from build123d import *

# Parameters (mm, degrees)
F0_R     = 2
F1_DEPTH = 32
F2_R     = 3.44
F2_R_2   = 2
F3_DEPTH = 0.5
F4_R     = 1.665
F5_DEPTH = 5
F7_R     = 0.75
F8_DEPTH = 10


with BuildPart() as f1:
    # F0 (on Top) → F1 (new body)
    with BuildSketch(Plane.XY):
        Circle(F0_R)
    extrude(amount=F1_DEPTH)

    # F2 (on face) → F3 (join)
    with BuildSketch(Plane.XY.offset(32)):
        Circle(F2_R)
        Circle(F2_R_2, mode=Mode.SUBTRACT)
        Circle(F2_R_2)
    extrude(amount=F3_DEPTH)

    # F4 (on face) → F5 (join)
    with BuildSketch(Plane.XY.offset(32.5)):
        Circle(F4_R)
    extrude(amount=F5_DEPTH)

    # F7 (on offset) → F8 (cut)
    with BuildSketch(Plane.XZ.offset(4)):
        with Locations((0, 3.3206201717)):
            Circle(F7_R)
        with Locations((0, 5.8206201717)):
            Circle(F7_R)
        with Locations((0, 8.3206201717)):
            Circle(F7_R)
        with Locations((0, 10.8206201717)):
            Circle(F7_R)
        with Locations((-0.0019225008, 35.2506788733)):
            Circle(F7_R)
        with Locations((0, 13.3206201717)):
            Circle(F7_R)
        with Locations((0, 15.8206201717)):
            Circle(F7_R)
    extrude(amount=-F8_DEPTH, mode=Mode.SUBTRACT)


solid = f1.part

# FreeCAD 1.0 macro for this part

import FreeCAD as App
import Part
import Sketcher

doc = App.newDocument("Part")
params = doc.addObject("Spreadsheet::Sheet", "Params")
for row, (alias, value) in enumerate([
    ("sketch1_diameter", "4 mm"),
    ("pad1_length", "32 mm"),
    ("sketch2_diameter", "6.88 mm"),
    ("pad2_length", "0.5 mm"),
    ("sketch3_diameter", "3.33 mm"),
    ("pad3_length", "5 mm"),
    ("sketch4_diameter", "1.5 mm"),
    ("pocket1_length", "10 mm"),
], start=1):
    params.set(f"A{row}", alias)
    params.set(f"B{row}", "=" + value)
    params.setAlias(f"B{row}", alias)

body = doc.addObject("PartDesign::Body", "Body")

# Sketch on XY plane
sketch1 = body.newObject("Sketcher::SketchObject", "Sketch")
sketch1.AttachmentSupport = (doc.getObject("XY_Plane"), [""])
sketch1.MapMode = "FlatFace"
sketch1.addGeometry(Part.Circle(App.Vector(0, 0, 0), App.Vector(0, 0, 1), 2), False)
sketch1.addConstraint(Sketcher.Constraint("Coincident", 0, 3, -1, 1))
sketch1.addConstraint(Sketcher.Constraint("Diameter", 0, 4.0))
sketch1.setExpression("Constraints[1]", "Params.sketch1_diameter")
pad1 = body.newObject("PartDesign::Pad", "Pad")
pad1.Profile = sketch1
pad1.setExpression("Length", "Params.pad1_length")

# Sketch on XY plane
sketch2 = body.newObject("Sketcher::SketchObject", "Sketch001")
sketch2.AttachmentSupport = (doc.getObject("XY_Plane"), [""])
sketch2.MapMode = "FlatFace"
sketch2.AttachmentOffset = App.Placement(App.Vector(0, 0, 32), App.Rotation())
sketch2.addGeometry(Part.Circle(App.Vector(0, 0, 0), App.Vector(0, 0, 1), 3.4), False)
sketch2.addConstraint(Sketcher.Constraint("Coincident", 0, 3, -1, 1))
sketch2.addConstraint(Sketcher.Constraint("Diameter", 0, 6.88))
sketch2.setExpression("Constraints[1]", "Params.sketch2_diameter")
pad2 = body.newObject("PartDesign::Pad", "Pad001")
pad2.Profile = sketch2
pad2.setExpression("Length", "Params.pad2_length")

# Sketch on XY plane
sketch3 = body.newObject("Sketcher::SketchObject", "Sketch002")
sketch3.AttachmentSupport = (doc.getObject("XY_Plane"), [""])
sketch3.MapMode = "FlatFace"
sketch3.AttachmentOffset = App.Placement(App.Vector(0, 0, 32.5), App.Rotation())
sketch3.addGeometry(Part.Circle(App.Vector(0, 0, 0), App.Vector(0, 0, 1), 1.7), False)
sketch3.addConstraint(Sketcher.Constraint("Coincident", 0, 3, -1, 1))
sketch3.addConstraint(Sketcher.Constraint("Diameter", 0, 3.33))
sketch3.setExpression("Constraints[1]", "Params.sketch3_diameter")
pad3 = body.newObject("PartDesign::Pad", "Pad002")
pad3.Profile = sketch3
pad3.setExpression("Length", "Params.pad3_length")

# Sketch on XZ plane
sketch4 = body.newObject("Sketcher::SketchObject", "Sketch003")
sketch4.AttachmentSupport = (doc.getObject("XZ_Plane"), [""])
sketch4.MapMode = "FlatFace"
sketch4.AttachmentOffset = App.Placement(App.Vector(0, 0, 4), App.Rotation())
sketch4.addGeometry(Part.Circle(App.Vector(0, 3.3, 0), App.Vector(0, 0, 1), 0.8), False)
sketch4.addGeometry(Part.Circle(App.Vector(0, 5.8, 0), App.Vector(0, 0, 1), 0.8), False)
sketch4.addGeometry(Part.Circle(App.Vector(0, 8.3, 0), App.Vector(0, 0, 1), 0.8), False)
sketch4.addGeometry(Part.Circle(App.Vector(0, 10.8, 0), App.Vector(0, 0, 1), 0.8), False)
sketch4.addGeometry(Part.Circle(App.Vector(0, 35.3, 0), App.Vector(0, 0, 1), 0.8), False)
sketch4.addGeometry(Part.Circle(App.Vector(0, 13.3, 0), App.Vector(0, 0, 1), 0.8), False)
sketch4.addGeometry(Part.Circle(App.Vector(0, 15.8, 0), App.Vector(0, 0, 1), 0.8), False)
sketch4.addConstraint(Sketcher.Constraint("Equal", 0, 1))
sketch4.addConstraint(Sketcher.Constraint("Equal", 1, 2))
sketch4.addConstraint(Sketcher.Constraint("Equal", 2, 3))
sketch4.addConstraint(Sketcher.Constraint("Equal", 3, 4))
sketch4.addConstraint(Sketcher.Constraint("Equal", 4, 5))
sketch4.addConstraint(Sketcher.Constraint("Equal", 5, 6))
sketch4.addConstraint(Sketcher.Constraint("PointOnObject", 0, 3, -2))
sketch4.addConstraint(Sketcher.Constraint("PointOnObject", 1, 3, -2))
sketch4.addConstraint(Sketcher.Constraint("PointOnObject", 2, 3, -2))
sketch4.addConstraint(Sketcher.Constraint("PointOnObject", 3, 3, -2))
sketch4.addConstraint(Sketcher.Constraint("PointOnObject", 5, 3, -2))
sketch4.addConstraint(Sketcher.Constraint("PointOnObject", 6, 3, -2))
sketch4.addConstraint(Sketcher.Constraint("Diameter", 0, 1.5))
sketch4.addConstraint(Sketcher.Constraint("DistanceY", 0, 3, 2, 3, 5.0))
sketch4.addConstraint(Sketcher.Constraint("DistanceY", 1, 3, 3, 3, 5.0))
sketch4.addConstraint(Sketcher.Constraint("DistanceY", 2, 3, 5, 3, 5.0))
sketch4.addConstraint(Sketcher.Constraint("DistanceY", 3, 3, 6, 3, 5.0))
sketch4.addConstraint(Sketcher.Constraint("DistanceY", 0, 3, 1, 3, 2.5))
sketch4.addConstraint(Sketcher.Constraint("DistanceY", -1, 1, 0, 3, 3.32062))
sketch4.addConstraint(Sketcher.Constraint("DistanceY", -1, 1, 4, 3, 35.250679))
sketch4.addConstraint(Sketcher.Constraint("DistanceX", 4, 3, -1, 1, 0.001923))
sketch4.setExpression("Constraints[12]", "Params.sketch4_diameter")
pocket1 = body.newObject("PartDesign::Pocket", "Pocket")
pocket1.Profile = sketch4
pocket1.setExpression("Length", "Params.pocket1_length")

doc.recompute()
